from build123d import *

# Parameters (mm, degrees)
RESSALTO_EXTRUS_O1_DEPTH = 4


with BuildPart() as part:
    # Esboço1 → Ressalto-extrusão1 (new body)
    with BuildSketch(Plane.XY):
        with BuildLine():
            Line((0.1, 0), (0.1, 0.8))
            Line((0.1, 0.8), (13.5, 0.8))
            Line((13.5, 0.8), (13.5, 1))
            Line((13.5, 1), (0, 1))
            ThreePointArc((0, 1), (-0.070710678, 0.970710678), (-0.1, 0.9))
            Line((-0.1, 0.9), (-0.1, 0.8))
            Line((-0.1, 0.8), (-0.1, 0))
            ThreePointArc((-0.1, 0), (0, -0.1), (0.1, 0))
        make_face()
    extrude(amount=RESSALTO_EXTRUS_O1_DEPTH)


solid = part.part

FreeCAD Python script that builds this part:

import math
import FreeCAD as App
import Part
import Sketcher

V = App.Vector
Q = App.Units.Quantity

doc = App.newDocument("Part")
body = doc.addObject("PartDesign::Body", "Body")

sketch1 = body.newObject("Sketcher::SketchObject", "Sketch")
sketch1.AttachmentSupport = (doc.getObject("XY_Plane"), [""])
sketch1.MapMode = "FlatFace"
sketch1.addGeometry([
    Part.LineSegment(V(0.1, 0, 0), V(0.1, 0.8, 0)),
    Part.LineSegment(V(0.1, 0.8, 0), V(13.5, 0.8, 0)),
    Part.LineSegment(V(13.5, 0.8, 0), V(13.5, 1, 0)),
    Part.LineSegment(V(13.5, 1, 0), V(0, 1, 0)),
    Part.ArcOfCircle(Part.Circle(V(0, 0.9, 0), V(0, 0, 1), 0.1), math.radians(90), math.radians(180)),
    Part.LineSegment(V(-0.1, 0.9, 0), V(-0.1, 0, 0)),
    Part.ArcOfCircle(Part.Circle(V(0, 0, 0), V(0, 0, 1), 0.1), math.radians(180), math.radians(360)),
], False)
sketch1.addConstraint([
    Sketcher.Constraint("Coincident", 0, 2, 1, 1),
    Sketcher.Constraint("Coincident", 1, 2, 2, 1),
    Sketcher.Constraint("Coincident", 2, 2, 3, 1),
    Sketcher.Constraint("Tangent", 3, 2, 4, 1),
    Sketcher.Constraint("Tangent", 4, 2, 5, 1),
    Sketcher.Constraint("Tangent", 5, 2, 6, 1),
    Sketcher.Constraint("Tangent", 6, 2, 0, 1),
    Sketcher.Constraint("Vertical", 0),
    Sketcher.Constraint("Horizontal", 1),
    Sketcher.Constraint("Vertical", 2),
    Sketcher.Constraint("Horizontal", 3),
    Sketcher.Constraint("Vertical", 5),
    Sketcher.Constraint("Coincident", 6, 3, -1, 1),
    Sketcher.Constraint("Equal", 4, 6),
    Sketcher.Constraint("Radius", 4, Q("0.1 mm")),
    Sketcher.Constraint("DistanceX", 1, 1, 1, 2, Q("13.4 mm")),
    Sketcher.Constraint("DistanceY", 0, 1, 0, 2, Q("0.8 mm")),
    Sketcher.Constraint("DistanceY", 2, 1, 2, 2, Q("0.2 mm")),
])
pad1 = body.newObject("PartDesign::Pad", "Pad")
pad1.Profile = sketch1
pad1.Length = 4

doc.recompute()
